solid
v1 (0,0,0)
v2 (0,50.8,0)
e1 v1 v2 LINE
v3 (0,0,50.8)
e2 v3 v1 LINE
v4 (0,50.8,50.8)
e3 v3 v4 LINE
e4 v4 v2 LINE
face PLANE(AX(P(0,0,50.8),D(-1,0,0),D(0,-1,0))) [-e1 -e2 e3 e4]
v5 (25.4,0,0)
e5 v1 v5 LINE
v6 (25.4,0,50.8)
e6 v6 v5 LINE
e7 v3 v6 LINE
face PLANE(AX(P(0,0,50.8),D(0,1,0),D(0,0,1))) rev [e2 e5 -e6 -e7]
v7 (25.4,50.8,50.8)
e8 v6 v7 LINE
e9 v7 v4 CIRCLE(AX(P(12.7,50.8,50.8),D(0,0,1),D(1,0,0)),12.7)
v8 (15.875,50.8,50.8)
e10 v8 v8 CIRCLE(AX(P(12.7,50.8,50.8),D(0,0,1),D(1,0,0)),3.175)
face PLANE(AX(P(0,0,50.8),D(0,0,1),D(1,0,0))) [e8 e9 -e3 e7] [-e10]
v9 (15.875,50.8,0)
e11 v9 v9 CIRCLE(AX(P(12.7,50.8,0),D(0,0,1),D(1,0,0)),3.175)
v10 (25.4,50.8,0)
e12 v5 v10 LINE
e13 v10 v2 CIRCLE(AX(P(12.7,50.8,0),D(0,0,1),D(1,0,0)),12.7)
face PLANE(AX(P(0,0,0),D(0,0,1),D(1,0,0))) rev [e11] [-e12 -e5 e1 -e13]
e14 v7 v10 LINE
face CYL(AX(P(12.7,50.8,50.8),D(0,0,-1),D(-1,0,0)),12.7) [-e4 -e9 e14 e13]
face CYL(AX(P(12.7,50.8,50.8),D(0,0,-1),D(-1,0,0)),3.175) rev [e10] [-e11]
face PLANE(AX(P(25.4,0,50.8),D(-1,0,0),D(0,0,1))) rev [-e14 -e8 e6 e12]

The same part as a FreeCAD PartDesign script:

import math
import FreeCAD as App
import Part
import Sketcher

V = App.Vector
Q = App.Units.Quantity

doc = App.newDocument("Part")
body = doc.addObject("PartDesign::Body", "Body")

# Sketch on XY plane
sketch1 = doc.addObject("Sketcher::SketchObject", "Sketch")
body.addObject(sketch1)
sketch1.AttachmentSupport = (doc.XY_Plane, [""])
sketch1.MapMode = "FlatFace"
sketch1.addGeometry([
    Part.ArcOfCircle(Part.Circle(V(12.7, 50.8, 0), V(0, 0, 1), 12.7), math.radians(0), math.radians(180)),  # 0
    Part.LineSegment(V(0, 50.8, 0), V(0, 0, 0)),  # 1
    Part.LineSegment(V(0, 0, 0), V(25.4, 0, 0)),  # 2
    Part.LineSegment(V(25.4, 0, 0), V(25.4, 50.8, 0)),  # 3
    Part.Circle(V(12.7, 50.8, 0), V(0, 0, 1), 3.175),  # 4
], False)
sketch1.addConstraint([
    Sketcher.Constraint("Tangent", 0, 2, 1, 1),
    Sketcher.Constraint("Coincident", 1, 2, 2, 1),
    Sketcher.Constraint("Coincident", 2, 2, 3, 1),
    Sketcher.Constraint("Tangent", 3, 2, 0, 1),
    Sketcher.Constraint("Vertical", 1),
    Sketcher.Constraint("Horizontal", 2),
    Sketcher.Constraint("Vertical", 3),
    Sketcher.Constraint("Coincident", 1, 2, -1, 1),
    Sketcher.Constraint("Coincident", 4, 3, 0, 3),
    Sketcher.Constraint("Radius", 0, Q("0.5 in")),
    Sketcher.Constraint("Diameter", 4, Q("0.25 in")),
    Sketcher.Constraint("DistanceY", 1, 2, 1, 1, Q("2 in")),
])
pad1 = doc.addObject("PartDesign::Pad", "Pad")
body.addObject(pad1)
pad1.Profile = sketch1
pad1.Length = Q("2 in")

doc.recompute()
